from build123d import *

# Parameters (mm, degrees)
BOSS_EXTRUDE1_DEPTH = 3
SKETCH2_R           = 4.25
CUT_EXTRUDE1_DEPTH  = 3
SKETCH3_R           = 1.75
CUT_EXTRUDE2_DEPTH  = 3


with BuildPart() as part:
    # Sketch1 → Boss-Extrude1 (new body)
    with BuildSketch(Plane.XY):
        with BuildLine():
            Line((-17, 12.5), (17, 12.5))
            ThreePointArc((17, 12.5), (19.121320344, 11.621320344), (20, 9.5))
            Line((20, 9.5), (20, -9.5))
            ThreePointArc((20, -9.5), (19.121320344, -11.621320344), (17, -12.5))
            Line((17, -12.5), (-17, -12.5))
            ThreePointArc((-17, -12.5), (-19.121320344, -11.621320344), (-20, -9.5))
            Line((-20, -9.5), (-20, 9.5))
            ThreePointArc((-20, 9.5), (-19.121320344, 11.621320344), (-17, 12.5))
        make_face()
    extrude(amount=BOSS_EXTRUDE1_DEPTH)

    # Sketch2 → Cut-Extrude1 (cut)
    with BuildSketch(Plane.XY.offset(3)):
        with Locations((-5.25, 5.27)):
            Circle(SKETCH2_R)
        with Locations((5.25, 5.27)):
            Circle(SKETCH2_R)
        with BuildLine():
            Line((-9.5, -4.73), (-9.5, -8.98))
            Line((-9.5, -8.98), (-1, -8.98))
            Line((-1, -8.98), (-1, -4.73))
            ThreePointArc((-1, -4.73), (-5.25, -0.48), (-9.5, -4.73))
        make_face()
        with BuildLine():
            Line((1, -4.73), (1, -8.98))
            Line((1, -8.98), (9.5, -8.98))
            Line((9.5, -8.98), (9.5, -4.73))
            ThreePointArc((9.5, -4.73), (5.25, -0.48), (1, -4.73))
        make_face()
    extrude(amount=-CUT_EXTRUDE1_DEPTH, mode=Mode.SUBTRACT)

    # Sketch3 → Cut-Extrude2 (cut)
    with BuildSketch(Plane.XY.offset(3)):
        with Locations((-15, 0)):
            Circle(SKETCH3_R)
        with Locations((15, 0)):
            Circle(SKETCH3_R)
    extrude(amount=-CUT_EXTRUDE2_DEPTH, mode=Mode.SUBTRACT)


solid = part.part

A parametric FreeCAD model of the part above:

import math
import FreeCAD as App
import Part
import Sketcher

V = App.Vector

doc = App.newDocument("Part")
params = doc.addObject("Spreadsheet::Sheet", "Params")
for row, (alias, value) in enumerate([
    ("sketch1_radius", "3 mm"),
    ("sketch1_width", "34 mm"),
    ("sketch1_height", "19 mm"),
    ("pad1_length", "3 mm"),
    ("sketch2_diameter", "8.5 mm"),
    ("sketch2_height", "4.25 mm"),
    ("pocket1_length", "3 mm"),
    ("sketch3_diameter", "3.5 mm"),
    ("pocket2_length", "3 mm"),
], start=1):
    params.set(f"A{row}", alias)
    params.set(f"B{row}", "=" + value)
    params.setAlias(f"B{row}", alias)

body = doc.addObject("PartDesign::Body", "Body")

sketch1 = body.newObject("Sketcher::SketchObject", "Sketch")
sketch1.AttachmentSupport = (doc.getObject("XY_Plane"), [""])
sketch1.MapMode = "FlatFace"
sketch1.addGeometry([
    Part.LineSegment(V(17, 12.5, 0), V(-17, 12.5, 0)),
    Part.ArcOfCircle(Part.Circle(V(-17, 9.5, 0), V(0, 0, 1), 3), math.radians(90), math.radians(180)),
    Part.LineSegment(V(-20, 9.5, 0), V(-20, -9.5, 0)),
    Part.ArcOfCircle(Part.Circle(V(-17, -9.5, 0), V(0, 0, 1), 3), math.radians(180), math.radians(270)),
    Part.LineSegment(V(-17, -12.5, 0), V(17, -12.5, 0)),
    Part.ArcOfCircle(Part.Circle(V(17, -9.5, 0), V(0, 0, 1), 3), math.radians(-90), math.radians(0)),
    Part.LineSegment(V(20, -9.5, 0), V(20, 9.5, 0)),
    Part.ArcOfCircle(Part.Circle(V(17, 9.5, 0), V(0, 0, 1), 3), math.radians(0), math.radians(90)),
], False)
sketch1.addConstraint([
    Sketcher.Constraint("Tangent", 0, 2, 1, 1),
    Sketcher.Constraint("Tangent", 1, 2, 2, 1),
    Sketcher.Constraint("Tangent", 2, 2, 3, 1),
    Sketcher.Constraint("Tangent", 3, 2, 4, 1),
    Sketcher.Constraint("Tangent", 4, 2, 5, 1),
    Sketcher.Constraint("Tangent", 5, 2, 6, 1),
    Sketcher.Constraint("Tangent", 6, 2, 7, 1),
    Sketcher.Constraint("Tangent", 7, 2, 0, 1),
    Sketcher.Constraint("Horizontal", 0),
    Sketcher.Constraint("Vertical", 2),
    Sketcher.Constraint("Horizontal", 4),
    Sketcher.Constraint("Vertical", 6),
    Sketcher.Constraint("Equal", 1, 3),
    Sketcher.Constraint("Equal", 3, 5),
    Sketcher.Constraint("Equal", 5, 7),
    Sketcher.Constraint("Symmetric", 1, 3, 5, 3, -1, 1),
    Sketcher.Constraint("Radius", 1, 3.0),
    Sketcher.Constraint("DistanceX", 0, 2, 0, 1, 34.0),
    Sketcher.Constraint("DistanceY", 2, 2, 2, 1, 19.0),
])
sketch1.setExpression("Constraints[16]", "Params.sketch1_radius")
sketch1.setExpression("Constraints[17]", "Params.sketch1_width")
sketch1.setExpression("Constraints[18]", "Params.sketch1_height")
pad1 = body.newObject("PartDesign::Pad", "Pad")
pad1.Profile = sketch1
pad1.setExpression("Length", "Params.pad1_length")

sketch2 = body.newObject("Sketcher::SketchObject", "Sketch001")
sketch2.AttachmentSupport = (doc.getObject("XY_Plane"), [""])
sketch2.MapMode = "FlatFace"
sketch2.AttachmentOffset = App.Placement(V(0, 0, 3), App.Rotation())
sketch2.addGeometry([
    Part.Circle(V(-5.2, 5.3, 0), V(0, 0, 1), 4.2),
    Part.Circle(V(5.2, 5.3, 0), V(0, 0, 1), 4.2),
    Part.LineSegment(V(-9.5, -4.7, 0), V(-9.5, -9, 0)),
    Part.LineSegment(V(-9.5, -9, 0), V(-1, -9, 0)),
    Part.LineSegment(V(-1, -9, 0), V(-1, -4.7, 0)),
    Part.ArcOfCircle(Part.Circle(V(-5.2, -4.7, 0), V(0, 0, 1), 4.2), math.radians(0), math.radians(180)),
    Part.LineSegment(V(1, -4.7, 0), V(1, -9, 0)),
    Part.LineSegment(V(1, -9, 0), V(9.5, -9, 0)),
    Part.LineSegment(V(9.5, -9, 0), V(9.5, -4.7, 0)),
    Part.ArcOfCircle(Part.Circle(V(5.2, -4.7, 0), V(0, 0, 1), 4.2), math.radians(0), math.radians(180)),
], False)
sketch2.addConstraint([
    Sketcher.Constraint("Coincident", 2, 2, 3, 1),
    Sketcher.Constraint("Coincident", 3, 2, 4, 1),
    Sketcher.Constraint("Tangent", 4, 2, 5, 1),
    Sketcher.Constraint("Tangent", 5, 2, 2, 1),
    Sketcher.Constraint("Coincident", 6, 2, 7, 1),
    Sketcher.Constraint("Coincident", 7, 2, 8, 1),
    Sketcher.Constraint("Tangent", 8, 2, 9, 1),
    Sketcher.Constraint("Tangent", 9, 2, 6, 1),
    Sketcher.Constraint("Vertical", 2),
    Sketcher.Constraint("Horizontal", 3),
    Sketcher.Constraint("Vertical", 4),
    Sketcher.Constraint("Vertical", 6),
    Sketcher.Constraint("Horizontal", 7),
    Sketcher.Constraint("Vertical", 8),
    Sketcher.Constraint("Equal", 0, 1),
    Sketcher.Constraint("Equal", 1, 5),
    Sketcher.Constraint("Equal", 5, 9),
    Sketcher.Constraint("Symmetric", 0, 3, 1, 3, -2),
    Sketcher.Constraint("Symmetric", 5, 3, 9, 3, -2),
    Sketcher.Constraint("Horizontal", 3, 2, 6, 2),
    Sketcher.Constraint("Vertical", 0, 3, 5, 3),
    Sketcher.Constraint("Diameter", 0, 8.5),
    Sketcher.Constraint("DistanceX", 3, 2, -1, 1, 1.0),
    Sketcher.Constraint("DistanceY", 5, 3, 0, 3, 10.0),
    Sketcher.Constraint("DistanceY", 2, 2, 2, 1, 4.25),
    Sketcher.Constraint("DistanceY", -1, 1, 0, 3, 5.27),
])
sketch2.setExpression("Constraints[21]", "Params.sketch2_diameter")
sketch2.setExpression("Constraints[24]", "Params.sketch2_height")
pocket1 = body.newObject("PartDesign::Pocket", "Pocket")
pocket1.Profile = sketch2
pocket1.setExpression("Length", "Params.pocket1_length")

sketch3 = body.newObject("Sketcher::SketchObject", "Sketch002")
sketch3.AttachmentSupport = (doc.getObject("XY_Plane"), [""])
sketch3.MapMode = "FlatFace"
sketch3.AttachmentOffset = App.Placement(V(0, 0, 3), App.Rotation())
sketch3.addGeometry([
    Part.Circle(V(-15, 0, 0), V(0, 0, 1), 1.8),
    Part.Circle(V(15, 0, 0), V(0, 0, 1), 1.8),
], False)
sketch3.addConstraint([
    Sketcher.Constraint("Equal", 0, 1),
    Sketcher.Constraint("Symmetric", 0, 3, 1, 3, -1, 1),
    Sketcher.Constraint("PointOnObject", 0, 3, -1),
    Sketcher.Constraint("Diameter", 0, 3.5),
    Sketcher.Constraint("DistanceX", 0, 3, -1, 1, 15.0),
])
sketch3.setExpression("Constraints[3]", "Params.sketch3_diameter")
pocket2 = body.newObject("PartDesign::Pocket", "Pocket001")
pocket2.Profile = sketch3
pocket2.setExpression("Length", "Params.pocket2_length")

doc.recompute()
